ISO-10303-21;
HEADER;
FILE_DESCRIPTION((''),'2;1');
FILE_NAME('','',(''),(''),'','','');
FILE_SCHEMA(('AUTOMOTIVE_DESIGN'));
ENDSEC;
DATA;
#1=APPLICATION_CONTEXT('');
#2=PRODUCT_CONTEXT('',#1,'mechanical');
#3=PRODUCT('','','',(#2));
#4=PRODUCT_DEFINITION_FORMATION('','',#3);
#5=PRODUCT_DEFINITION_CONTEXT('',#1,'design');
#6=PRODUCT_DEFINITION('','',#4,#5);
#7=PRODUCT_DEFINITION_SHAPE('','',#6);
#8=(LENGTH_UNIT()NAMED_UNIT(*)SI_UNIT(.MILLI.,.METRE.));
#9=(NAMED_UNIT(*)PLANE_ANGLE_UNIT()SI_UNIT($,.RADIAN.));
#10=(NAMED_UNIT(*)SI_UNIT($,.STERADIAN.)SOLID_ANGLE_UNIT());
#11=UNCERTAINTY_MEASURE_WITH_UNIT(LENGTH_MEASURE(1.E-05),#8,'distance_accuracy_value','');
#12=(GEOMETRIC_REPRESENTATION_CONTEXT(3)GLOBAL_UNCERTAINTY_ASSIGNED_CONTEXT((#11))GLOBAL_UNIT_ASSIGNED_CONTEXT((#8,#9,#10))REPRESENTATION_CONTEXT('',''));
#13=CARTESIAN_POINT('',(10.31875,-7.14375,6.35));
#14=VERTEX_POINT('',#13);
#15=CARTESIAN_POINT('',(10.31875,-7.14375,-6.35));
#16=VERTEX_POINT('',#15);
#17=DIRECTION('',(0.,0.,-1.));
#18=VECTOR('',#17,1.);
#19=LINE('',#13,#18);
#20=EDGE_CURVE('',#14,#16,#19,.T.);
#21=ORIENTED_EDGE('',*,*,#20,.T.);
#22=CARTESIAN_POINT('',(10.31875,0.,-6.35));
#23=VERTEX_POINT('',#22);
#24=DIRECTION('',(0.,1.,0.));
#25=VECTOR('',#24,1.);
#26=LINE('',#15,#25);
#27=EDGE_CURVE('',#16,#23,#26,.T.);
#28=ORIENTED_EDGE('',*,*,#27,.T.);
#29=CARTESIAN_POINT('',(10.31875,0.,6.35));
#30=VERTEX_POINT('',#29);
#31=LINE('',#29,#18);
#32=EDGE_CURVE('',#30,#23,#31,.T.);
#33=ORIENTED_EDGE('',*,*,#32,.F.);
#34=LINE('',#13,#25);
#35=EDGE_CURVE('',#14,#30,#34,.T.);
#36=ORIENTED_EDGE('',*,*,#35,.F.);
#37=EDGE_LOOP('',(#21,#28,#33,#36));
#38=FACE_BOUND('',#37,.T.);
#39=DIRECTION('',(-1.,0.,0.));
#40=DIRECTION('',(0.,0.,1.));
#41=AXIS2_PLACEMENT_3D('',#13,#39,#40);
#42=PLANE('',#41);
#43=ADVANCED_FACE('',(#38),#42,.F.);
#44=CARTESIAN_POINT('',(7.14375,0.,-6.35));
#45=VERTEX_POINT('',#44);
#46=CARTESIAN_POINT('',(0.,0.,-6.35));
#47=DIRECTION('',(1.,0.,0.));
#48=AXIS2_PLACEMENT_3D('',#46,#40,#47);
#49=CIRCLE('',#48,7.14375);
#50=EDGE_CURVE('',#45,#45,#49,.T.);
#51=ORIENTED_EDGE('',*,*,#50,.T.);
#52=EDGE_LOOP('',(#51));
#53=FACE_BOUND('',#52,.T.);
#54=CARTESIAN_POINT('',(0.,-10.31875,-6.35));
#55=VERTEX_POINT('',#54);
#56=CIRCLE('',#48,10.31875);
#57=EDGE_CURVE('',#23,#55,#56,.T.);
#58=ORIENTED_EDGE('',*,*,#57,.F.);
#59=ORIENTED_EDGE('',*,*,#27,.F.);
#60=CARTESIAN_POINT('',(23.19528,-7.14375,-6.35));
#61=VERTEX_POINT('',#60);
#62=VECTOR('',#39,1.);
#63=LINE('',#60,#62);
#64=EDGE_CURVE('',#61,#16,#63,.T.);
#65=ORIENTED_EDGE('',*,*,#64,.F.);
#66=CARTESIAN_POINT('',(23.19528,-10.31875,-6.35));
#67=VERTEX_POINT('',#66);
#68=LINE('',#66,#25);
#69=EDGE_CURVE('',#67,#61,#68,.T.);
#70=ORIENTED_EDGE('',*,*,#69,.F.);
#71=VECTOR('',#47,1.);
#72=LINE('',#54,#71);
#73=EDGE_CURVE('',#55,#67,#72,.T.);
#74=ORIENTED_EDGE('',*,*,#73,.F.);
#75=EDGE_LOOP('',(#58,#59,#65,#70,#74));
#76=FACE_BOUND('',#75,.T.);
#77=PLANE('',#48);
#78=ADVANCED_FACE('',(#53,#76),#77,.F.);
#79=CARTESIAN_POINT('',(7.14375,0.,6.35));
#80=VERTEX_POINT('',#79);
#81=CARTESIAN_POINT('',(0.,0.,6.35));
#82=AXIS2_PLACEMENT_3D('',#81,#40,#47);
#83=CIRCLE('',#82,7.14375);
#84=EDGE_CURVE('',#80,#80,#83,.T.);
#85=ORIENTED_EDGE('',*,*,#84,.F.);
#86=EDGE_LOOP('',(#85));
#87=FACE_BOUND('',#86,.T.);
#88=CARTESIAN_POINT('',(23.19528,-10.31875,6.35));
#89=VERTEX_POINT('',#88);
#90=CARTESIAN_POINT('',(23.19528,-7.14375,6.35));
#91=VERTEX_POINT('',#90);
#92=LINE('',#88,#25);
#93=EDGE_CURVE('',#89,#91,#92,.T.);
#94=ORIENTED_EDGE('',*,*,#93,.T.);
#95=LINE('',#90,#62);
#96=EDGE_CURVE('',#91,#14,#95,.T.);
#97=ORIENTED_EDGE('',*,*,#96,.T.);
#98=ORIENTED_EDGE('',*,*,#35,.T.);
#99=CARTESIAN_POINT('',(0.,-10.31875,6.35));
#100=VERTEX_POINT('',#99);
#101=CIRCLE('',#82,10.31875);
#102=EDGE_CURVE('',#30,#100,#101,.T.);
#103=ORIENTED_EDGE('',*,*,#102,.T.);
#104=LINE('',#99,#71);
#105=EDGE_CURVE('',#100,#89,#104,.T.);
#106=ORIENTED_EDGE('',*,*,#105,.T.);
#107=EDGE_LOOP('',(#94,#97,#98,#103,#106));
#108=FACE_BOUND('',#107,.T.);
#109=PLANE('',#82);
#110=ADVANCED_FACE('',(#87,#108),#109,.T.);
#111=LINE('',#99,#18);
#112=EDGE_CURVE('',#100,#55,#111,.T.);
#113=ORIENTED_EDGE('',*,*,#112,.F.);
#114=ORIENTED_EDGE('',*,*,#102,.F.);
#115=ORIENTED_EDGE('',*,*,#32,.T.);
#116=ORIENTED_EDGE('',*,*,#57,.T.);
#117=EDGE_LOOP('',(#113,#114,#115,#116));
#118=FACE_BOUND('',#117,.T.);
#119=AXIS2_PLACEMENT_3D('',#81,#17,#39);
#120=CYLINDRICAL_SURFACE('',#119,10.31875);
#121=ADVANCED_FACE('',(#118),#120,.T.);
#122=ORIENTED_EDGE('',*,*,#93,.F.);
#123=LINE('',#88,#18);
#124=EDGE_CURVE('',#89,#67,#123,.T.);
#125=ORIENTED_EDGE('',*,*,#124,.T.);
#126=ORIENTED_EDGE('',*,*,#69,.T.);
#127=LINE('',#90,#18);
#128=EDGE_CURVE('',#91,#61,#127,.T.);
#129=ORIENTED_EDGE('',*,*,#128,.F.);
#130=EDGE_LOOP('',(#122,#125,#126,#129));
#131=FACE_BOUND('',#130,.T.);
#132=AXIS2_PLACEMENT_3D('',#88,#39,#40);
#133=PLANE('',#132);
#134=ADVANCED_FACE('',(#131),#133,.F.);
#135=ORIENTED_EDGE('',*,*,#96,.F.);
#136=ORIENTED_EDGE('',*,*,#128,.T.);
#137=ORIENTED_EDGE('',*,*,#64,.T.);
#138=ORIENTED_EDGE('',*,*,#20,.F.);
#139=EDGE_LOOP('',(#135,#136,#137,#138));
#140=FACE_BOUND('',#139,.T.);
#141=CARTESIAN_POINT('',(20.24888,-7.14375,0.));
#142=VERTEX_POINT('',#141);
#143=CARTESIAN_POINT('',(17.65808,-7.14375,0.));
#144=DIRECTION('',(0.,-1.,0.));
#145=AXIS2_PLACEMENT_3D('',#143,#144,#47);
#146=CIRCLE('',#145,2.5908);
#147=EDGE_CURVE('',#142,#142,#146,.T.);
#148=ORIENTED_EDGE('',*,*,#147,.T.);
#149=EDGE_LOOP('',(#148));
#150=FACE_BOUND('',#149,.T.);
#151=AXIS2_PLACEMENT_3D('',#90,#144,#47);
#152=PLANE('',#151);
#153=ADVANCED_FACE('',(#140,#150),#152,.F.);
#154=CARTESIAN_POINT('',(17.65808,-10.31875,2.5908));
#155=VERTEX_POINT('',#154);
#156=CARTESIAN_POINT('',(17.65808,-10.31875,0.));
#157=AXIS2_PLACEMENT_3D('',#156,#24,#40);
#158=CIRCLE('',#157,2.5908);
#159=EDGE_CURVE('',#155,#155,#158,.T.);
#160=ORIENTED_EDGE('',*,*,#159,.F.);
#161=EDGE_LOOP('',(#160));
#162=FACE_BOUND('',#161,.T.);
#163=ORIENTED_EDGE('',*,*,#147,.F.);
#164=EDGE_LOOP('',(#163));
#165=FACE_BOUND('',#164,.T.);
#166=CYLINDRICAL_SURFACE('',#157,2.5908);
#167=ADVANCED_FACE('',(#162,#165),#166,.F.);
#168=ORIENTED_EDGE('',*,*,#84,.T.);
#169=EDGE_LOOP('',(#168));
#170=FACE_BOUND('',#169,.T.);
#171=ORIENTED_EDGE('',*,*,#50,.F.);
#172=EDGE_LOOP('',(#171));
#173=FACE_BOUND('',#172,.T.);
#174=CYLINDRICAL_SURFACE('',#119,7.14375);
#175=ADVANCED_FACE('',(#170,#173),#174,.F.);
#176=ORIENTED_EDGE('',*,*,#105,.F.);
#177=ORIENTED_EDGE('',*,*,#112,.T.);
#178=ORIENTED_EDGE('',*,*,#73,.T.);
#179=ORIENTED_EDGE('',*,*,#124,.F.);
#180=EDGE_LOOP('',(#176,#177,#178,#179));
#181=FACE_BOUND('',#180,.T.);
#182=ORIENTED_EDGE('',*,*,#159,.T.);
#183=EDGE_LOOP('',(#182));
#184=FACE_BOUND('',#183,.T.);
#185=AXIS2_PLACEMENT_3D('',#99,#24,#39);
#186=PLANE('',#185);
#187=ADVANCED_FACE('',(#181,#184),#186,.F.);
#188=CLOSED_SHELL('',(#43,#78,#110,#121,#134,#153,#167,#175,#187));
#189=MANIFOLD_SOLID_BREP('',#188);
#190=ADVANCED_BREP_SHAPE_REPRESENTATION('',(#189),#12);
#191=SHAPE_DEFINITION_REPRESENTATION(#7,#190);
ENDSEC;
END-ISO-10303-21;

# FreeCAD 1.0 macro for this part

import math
import FreeCAD as App
import Part
import Sketcher
Q = App.Units.Quantity

doc = App.newDocument("Part")
body = doc.addObject("PartDesign::Body", "Body")

# Sketch on XY plane
sketch1 = body.newObject("Sketcher::SketchObject", "Sketch")
sketch1.AttachmentSupport = (doc.getObject("XY_Plane"), [""])
sketch1.MapMode = "FlatFace"
sketch1.addGeometry(Part.LineSegment(App.Vector(0, -10.3, 0), App.Vector(23.2, -10.3, 0)), False)
sketch1.addGeometry(Part.LineSegment(App.Vector(23.2, -10.3, 0), App.Vector(23.2, -7.1, 0)), False)
sketch1.addGeometry(Part.LineSegment(App.Vector(23.2, -7.1, 0), App.Vector(10.3, -7.1, 0)), False)
sketch1.addGeometry(Part.LineSegment(App.Vector(10.3, -7.1, 0), App.Vector(10.3, 0, 0)), False)
sketch1.addGeometry(Part.ArcOfCircle(Part.Circle(App.Vector(0, 0, 0), App.Vector(0, 0, 1), 10.3), math.radians(0), math.radians(270)), False)
sketch1.addGeometry(Part.Circle(App.Vector(0, 0, 0), App.Vector(0, 0, 1), 7.1), False)
sketch1.addConstraint(Sketcher.Constraint("Coincident", 0, 2, 1, 1))
sketch1.addConstraint(Sketcher.Constraint("Coincident", 1, 2, 2, 1))
sketch1.addConstraint(Sketcher.Constraint("Coincident", 2, 2, 3, 1))
sketch1.addConstraint(Sketcher.Constraint("Tangent", 3, 2, 4, 1))
sketch1.addConstraint(Sketcher.Constraint("Tangent", 4, 2, 0, 1))
sketch1.addConstraint(Sketcher.Constraint("Horizontal", 0))
sketch1.addConstraint(Sketcher.Constraint("Vertical", 1))
sketch1.addConstraint(Sketcher.Constraint("Horizontal", 2))
sketch1.addConstraint(Sketcher.Constraint("Vertical", 3))
sketch1.addConstraint(Sketcher.Constraint("Coincident", 4, 3, -1, 1))
sketch1.addConstraint(Sketcher.Constraint("Coincident", 5, 3, -1, 1))
sketch1.addConstraint(Sketcher.Constraint("Diameter", 5, Q("0.5625 in")))
sketch1.addConstraint(Sketcher.Constraint("Radius", 4, Q("0.40625 in")))
sketch1.addConstraint(Sketcher.Constraint("DistanceY", 1, 1, 1, 2, Q("0.125 in")))
sketch1.addConstraint(Sketcher.Constraint("DistanceX", 0, 1, 0, 2, Q("0.9132 in")))
pad1 = body.newObject("PartDesign::Pad", "Pad")
pad1.Profile = sketch1
pad1.Length = Q("0.5 in")
pad1.Midplane = True

# Sketch on XZ plane
sketch2 = body.newObject("Sketcher::SketchObject", "Sketch001")
sketch2.AttachmentSupport = (doc.getObject("XZ_Plane"), [""])
sketch2.MapMode = "FlatFace"
sketch2.addGeometry(Part.Circle(App.Vector(17.7, 0, 0), App.Vector(0, 0, 1), 2.6), False)
sketch2.addConstraint(Sketcher.Constraint("PointOnObject", 0, 3, -1))
sketch2.addConstraint(Sketcher.Constraint("Diameter", 0, Q("0.204 in")))
sketch2.addConstraint(Sketcher.Constraint("DistanceX", -1, 1, 0, 3, Q("0.6952 in")))
pocket1 = body.newObject("PartDesign::Pocket", "Pocket")
pocket1.Profile = sketch2
pocket1.Type = "ThroughAll"
pocket1.Reversed = True

doc.recompute()
